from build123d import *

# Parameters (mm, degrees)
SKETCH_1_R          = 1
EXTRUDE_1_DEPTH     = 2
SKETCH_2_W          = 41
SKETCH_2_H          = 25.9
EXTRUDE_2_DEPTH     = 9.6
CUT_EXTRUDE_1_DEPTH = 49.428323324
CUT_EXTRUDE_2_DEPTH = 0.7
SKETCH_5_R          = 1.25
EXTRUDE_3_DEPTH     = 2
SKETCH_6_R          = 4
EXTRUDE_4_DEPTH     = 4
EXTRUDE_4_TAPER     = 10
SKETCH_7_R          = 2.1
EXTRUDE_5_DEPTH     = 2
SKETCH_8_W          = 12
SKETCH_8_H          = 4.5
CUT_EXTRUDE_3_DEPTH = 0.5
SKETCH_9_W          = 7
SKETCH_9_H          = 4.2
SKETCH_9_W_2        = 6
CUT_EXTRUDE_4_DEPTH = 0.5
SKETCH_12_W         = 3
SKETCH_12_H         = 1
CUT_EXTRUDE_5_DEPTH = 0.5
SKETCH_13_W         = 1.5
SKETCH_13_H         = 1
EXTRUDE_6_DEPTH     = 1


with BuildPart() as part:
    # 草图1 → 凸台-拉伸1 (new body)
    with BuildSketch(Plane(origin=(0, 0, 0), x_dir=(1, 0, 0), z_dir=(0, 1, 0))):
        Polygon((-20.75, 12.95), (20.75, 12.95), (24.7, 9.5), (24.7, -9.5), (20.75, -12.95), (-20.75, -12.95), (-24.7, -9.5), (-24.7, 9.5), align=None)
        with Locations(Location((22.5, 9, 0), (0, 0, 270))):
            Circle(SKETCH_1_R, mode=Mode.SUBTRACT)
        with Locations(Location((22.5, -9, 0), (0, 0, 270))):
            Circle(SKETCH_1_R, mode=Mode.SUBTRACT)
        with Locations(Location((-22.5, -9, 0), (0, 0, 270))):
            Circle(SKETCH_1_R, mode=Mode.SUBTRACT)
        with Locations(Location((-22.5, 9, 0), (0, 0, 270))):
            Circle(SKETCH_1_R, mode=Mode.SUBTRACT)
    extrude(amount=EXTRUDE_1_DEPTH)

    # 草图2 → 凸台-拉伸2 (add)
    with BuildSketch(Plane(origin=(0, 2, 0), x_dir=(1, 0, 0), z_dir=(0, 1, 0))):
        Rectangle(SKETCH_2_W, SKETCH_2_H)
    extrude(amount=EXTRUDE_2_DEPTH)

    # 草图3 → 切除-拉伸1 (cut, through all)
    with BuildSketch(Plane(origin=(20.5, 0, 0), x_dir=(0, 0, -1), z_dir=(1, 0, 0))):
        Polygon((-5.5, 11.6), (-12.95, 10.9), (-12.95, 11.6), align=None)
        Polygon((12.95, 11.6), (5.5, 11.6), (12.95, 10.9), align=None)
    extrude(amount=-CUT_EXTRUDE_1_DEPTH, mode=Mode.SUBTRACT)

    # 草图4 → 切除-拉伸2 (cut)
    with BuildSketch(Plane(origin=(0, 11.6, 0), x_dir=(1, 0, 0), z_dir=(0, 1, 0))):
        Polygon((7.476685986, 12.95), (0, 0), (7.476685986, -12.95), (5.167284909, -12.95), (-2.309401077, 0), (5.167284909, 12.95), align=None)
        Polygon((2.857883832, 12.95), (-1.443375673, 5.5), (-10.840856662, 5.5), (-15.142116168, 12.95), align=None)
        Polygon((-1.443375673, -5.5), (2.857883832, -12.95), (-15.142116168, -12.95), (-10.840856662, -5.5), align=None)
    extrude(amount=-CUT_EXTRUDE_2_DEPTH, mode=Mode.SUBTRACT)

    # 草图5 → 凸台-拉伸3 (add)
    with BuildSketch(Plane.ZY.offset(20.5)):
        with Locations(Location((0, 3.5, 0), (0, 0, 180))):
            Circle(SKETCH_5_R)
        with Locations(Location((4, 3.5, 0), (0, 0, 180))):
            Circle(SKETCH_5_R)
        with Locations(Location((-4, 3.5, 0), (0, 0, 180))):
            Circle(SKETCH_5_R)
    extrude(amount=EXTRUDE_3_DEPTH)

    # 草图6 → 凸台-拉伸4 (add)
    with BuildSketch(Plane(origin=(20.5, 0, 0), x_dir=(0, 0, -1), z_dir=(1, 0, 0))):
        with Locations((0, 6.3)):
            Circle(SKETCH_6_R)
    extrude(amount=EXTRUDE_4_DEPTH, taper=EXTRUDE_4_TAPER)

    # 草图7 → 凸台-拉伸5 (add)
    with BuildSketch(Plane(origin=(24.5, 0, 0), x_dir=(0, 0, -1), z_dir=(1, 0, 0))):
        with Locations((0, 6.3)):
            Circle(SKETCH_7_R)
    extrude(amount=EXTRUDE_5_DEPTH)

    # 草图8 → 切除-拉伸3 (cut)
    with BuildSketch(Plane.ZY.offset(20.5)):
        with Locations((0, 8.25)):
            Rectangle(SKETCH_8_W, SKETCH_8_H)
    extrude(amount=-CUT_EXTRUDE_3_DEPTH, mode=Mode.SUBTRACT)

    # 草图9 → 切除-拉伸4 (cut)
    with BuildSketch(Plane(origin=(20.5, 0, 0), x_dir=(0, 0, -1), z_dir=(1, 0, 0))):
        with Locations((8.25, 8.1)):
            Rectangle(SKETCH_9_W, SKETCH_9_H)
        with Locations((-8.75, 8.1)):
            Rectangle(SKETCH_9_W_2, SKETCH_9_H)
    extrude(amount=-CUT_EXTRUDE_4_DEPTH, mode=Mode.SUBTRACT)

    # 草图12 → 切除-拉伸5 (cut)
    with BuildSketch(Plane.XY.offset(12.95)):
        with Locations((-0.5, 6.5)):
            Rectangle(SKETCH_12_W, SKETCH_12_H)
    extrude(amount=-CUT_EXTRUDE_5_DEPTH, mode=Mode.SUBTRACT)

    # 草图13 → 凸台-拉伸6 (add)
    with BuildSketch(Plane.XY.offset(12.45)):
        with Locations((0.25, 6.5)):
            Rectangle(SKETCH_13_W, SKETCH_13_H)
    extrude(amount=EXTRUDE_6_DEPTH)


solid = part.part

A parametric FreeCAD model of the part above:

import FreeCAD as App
import Part
import Sketcher

V = App.Vector
Q = App.Units.Quantity


def add_polygon(sketch, points):
    """Adds a closed chain of lines whose ends are joined by coincident constraints."""
    first, n = sketch.GeometryCount, len(points)
    for a, b in zip(points, points[1:] + points[:1]):
        sketch.addGeometry(Part.LineSegment(App.Vector(*a, 0), App.Vector(*b, 0)), False)
    for i in range(n):
        sketch.addConstraint(Sketcher.Constraint("Coincident", first + i, 2, first + (i + 1) % n, 1))

doc = App.newDocument("Part")
params = doc.addObject("Spreadsheet::Sheet", "Params")
for row, (alias, value) in enumerate([
    ("sketch1_diameter", "2 mm"),
    ("sketch1_height", "19 mm"),
    ("sketch1_width", "41.5 mm"),
    ("pad1_length", "2 mm"),
    ("sketch2_width", "41 mm"),
    ("sketch2_height", "25.9 mm"),
    ("pad2_length", "9.6 mm"),
    ("sketch3_width", "0.7 mm"),
    ("sketch3_height", "7.45 mm"),
    ("sketch4_width", "18 mm"),
    ("pocket2_length", "0.7 mm"),
    ("sketch5_diameter", "2.5 mm"),
    ("pad3_length", "2 mm"),
    ("sketch6_diameter", "8 mm"),
    ("pad4_length", "4 mm"),
    ("pad4_taper", "-10 deg"),
    ("sketch7_diameter", "4.2 mm"),
    ("pad5_length", "2 mm"),
    ("sketch8_height", "12 mm"),
    ("sketch8_width", "4.5 mm"),
    ("pocket3_length", "0.5 mm"),
    ("sketch9_height", "7 mm"),
    ("sketch9_height2", "6 mm"),
    ("sketch9_width", "4.2 mm"),
    ("pocket4_length", "0.5 mm"),
    ("sketch10_width", "3 mm"),
    ("sketch10_height", "1 mm"),
    ("pocket5_length", "0.5 mm"),
    ("sketch11_height", "1 mm"),
    ("sketch11_width", "1.5 mm"),
    ("pad6_length", "1 mm"),
], start=1):
    params.set(f"A{row}", alias)
    params.set(f"B{row}", "=" + value)
    params.setAlias(f"B{row}", alias)

body = doc.addObject("PartDesign::Body", "Body")

sketch1 = doc.addObject("Sketcher::SketchObject", "Sketch")
body.addObject(sketch1)
sketch1.AttachmentSupport = (doc.XZ_Plane, [""])
sketch1.MapMode = "FlatFace"
add_polygon(sketch1, [(20.8, -12.9), (-20.8, -12.9), (-24.7, -9.5), (-24.7, 9.5), (-20.8, 12.9), (20.8, 12.9), (24.7, 9.5), (24.7, -9.5)])
sketch1.addGeometry(Part.Circle(V(22.5, 9, 0), V(0, 0, 1), 1), False)
sketch1.addGeometry(Part.Circle(V(-22.5, 9, 0), V(0, 0, 1), 1), False)
sketch1.addGeometry(Part.Circle(V(22.5, -9, 0), V(0, 0, 1), 1), False)
sketch1.addGeometry(Part.Circle(V(-22.5, -9, 0), V(0, 0, 1), 1), False)
sketch1.addConstraint(Sketcher.Constraint("Horizontal", 0))
sketch1.addConstraint(Sketcher.Constraint("Vertical", 2))
sketch1.addConstraint(Sketcher.Constraint("Horizontal", 4))
sketch1.addConstraint(Sketcher.Constraint("Vertical", 6))
sketch1.addConstraint(Sketcher.Constraint("Equal", 8, 9))
sketch1.addConstraint(Sketcher.Constraint("Equal", 9, 10))
sketch1.addConstraint(Sketcher.Constraint("Equal", 10, 11))
sketch1.addConstraint(Sketcher.Constraint("Symmetric", 9, 3, 10, 3, -1, 1))
sketch1.addConstraint(Sketcher.Constraint("Symmetric", 8, 3, 11, 3, -1, 1))
sketch1.addConstraint(Sketcher.Constraint("Symmetric", 0, 2, 4, 2, -1, 1))
sketch1.addConstraint(Sketcher.Constraint("Symmetric", 1, 2, 5, 2, -1, 1))
sketch1.addConstraint(Sketcher.Constraint("Symmetric", 8, 3, 9, 3, -2))
sketch1.addConstraint(Sketcher.Constraint("Parallel", 3, 7))
sketch1.addConstraint(Sketcher.Constraint("Horizontal", 2, 2, 5, 2))
sketch1.addConstraint(Sketcher.Constraint("Horizontal", 1, 2, 6, 2))
sketch1.addConstraint(Sketcher.Constraint("Vertical", 0, 2, 3, 2))
sketch1.addConstraint(Sketcher.Constraint("Diameter", 8, 2.0))
sketch1.addConstraint(Sketcher.Constraint("DistanceY", 2, 1, 2, 2, 19.0))
sketch1.addConstraint(Sketcher.Constraint("DistanceX", 0, 2, 0, 1, 41.5))
sketch1.addConstraint(Sketcher.Constraint("DistanceY", -1, 1, 8, 3, 9.0))
sketch1.addConstraint(Sketcher.Constraint("DistanceX", 9, 3, 8, 3, 45.0))
sketch1.addConstraint(Sketcher.Constraint("DistanceX", 1, 2, -1, 1, 24.7))
sketch1.addConstraint(Sketcher.Constraint("DistanceY", 0, 2, 3, 2, 25.9))
sketch1.setExpression("Constraints[24]", "Params.sketch1_diameter")
sketch1.setExpression("Constraints[25]", "Params.sketch1_height")
sketch1.setExpression("Constraints[26]", "Params.sketch1_width")
pad1 = doc.addObject("PartDesign::Pad", "Pad")
body.addObject(pad1)
pad1.Profile = sketch1
pad1.setExpression("Length", "Params.pad1_length")
pad1.Reversed = True

sketch2 = doc.addObject("Sketcher::SketchObject", "Sketch001")
body.addObject(sketch2)
sketch2.AttachmentSupport = (doc.XZ_Plane, [""])
sketch2.MapMode = "FlatFace"
sketch2.AttachmentOffset = App.Placement(V(0, 0, -2), App.Rotation())
add_polygon(sketch2, [(-20, -13), (-20, 13), (20, 13), (20, -13)])
sketch2.addConstraint(Sketcher.Constraint("Vertical", 0))
sketch2.addConstraint(Sketcher.Constraint("Horizontal", 1))
sketch2.addConstraint(Sketcher.Constraint("Vertical", 2))
sketch2.addConstraint(Sketcher.Constraint("Horizontal", 3))
sketch2.addConstraint(Sketcher.Constraint("Symmetric", 0, 2, 2, 2, -1, 1))
sketch2.addConstraint(Sketcher.Constraint("DistanceX", 1, 1, 1, 2, 41.0))
sketch2.addConstraint(Sketcher.Constraint("DistanceY", 0, 1, 0, 2, 25.9))
sketch2.setExpression("Constraints[9]", "Params.sketch2_width")
sketch2.setExpression("Constraints[10]", "Params.sketch2_height")
pad2 = doc.addObject("PartDesign::Pad", "Pad001")
body.addObject(pad2)
pad2.Profile = sketch2
pad2.setExpression("Length", "Params.pad2_length")
pad2.Reversed = True

sketch3 = doc.addObject("Sketcher::SketchObject", "Sketch002")
body.addObject(sketch3)
sketch3.AttachmentSupport = (doc.YZ_Plane, [""])
sketch3.MapMode = "FlatFace"
sketch3.AttachmentOffset = App.Placement(V(0, 0, 20.5), App.Rotation())
add_polygon(sketch3, [(10.9, 12.9), (11.6, 5.5), (11.6, 12.9)])
add_polygon(sketch3, [(11.6, -12.9), (11.6, -5.5), (10.9, -12.9)])
sketch3.addConstraint(Sketcher.Constraint("Vertical", 1))
sketch3.addConstraint(Sketcher.Constraint("Horizontal", 2))
sketch3.addConstraint(Sketcher.Constraint("Vertical", 3))
sketch3.addConstraint(Sketcher.Constraint("Horizontal", 5))
sketch3.addConstraint(Sketcher.Constraint("Symmetric", 0, 2, 3, 2, -1))
sketch3.addConstraint(Sketcher.Constraint("Symmetric", 2, 2, 4, 2, -1))
sketch3.addConstraint(Sketcher.Constraint("DistanceX", 2, 2, 2, 1, 0.7))
sketch3.addConstraint(Sketcher.Constraint("DistanceY", 3, 2, 0, 2, 11.0))
sketch3.addConstraint(Sketcher.Constraint("DistanceY", 1, 1, 1, 2, 7.45))
sketch3.addConstraint(Sketcher.Constraint("DistanceX", -1, 1, 0, 2, 11.6))
sketch3.setExpression("Constraints[12]", "Params.sketch3_width")
sketch3.setExpression("Constraints[14]", "Params.sketch3_height")
pocket1 = doc.addObject("PartDesign::Pocket", "Pocket")
body.addObject(pocket1)
pocket1.Profile = sketch3
pocket1.Type = "ThroughAll"

sketch4 = doc.addObject("Sketcher::SketchObject", "Sketch003")
body.addObject(sketch4)
sketch4.AttachmentSupport = (doc.XZ_Plane, [""])
sketch4.MapMode = "FlatFace"
sketch4.AttachmentOffset = App.Placement(V(0, 0, -11.6), App.Rotation())
add_polygon(sketch4, [(0, 0), (7.5, -12.9), (5.2, -12.9), (-2.3, 0), (5.2, 12.9), (7.5, 12.9)])
add_polygon(sketch4, [(-1.4, -5.5), (2.9, -12.9), (-15.1, -12.9), (-10.8, -5.5)])
add_polygon(sketch4, [(2.9, 12.9), (-1.4, 5.5), (-10.8, 5.5), (-15.1, 12.9)])
sketch4.addConstraint(Sketcher.Constraint("Horizontal", 1))
sketch4.addConstraint(Sketcher.Constraint("Horizontal", 4))
sketch4.addConstraint(Sketcher.Constraint("Horizontal", 7))
sketch4.addConstraint(Sketcher.Constraint("Horizontal", 9))
sketch4.addConstraint(Sketcher.Constraint("Horizontal", 11))
sketch4.addConstraint(Sketcher.Constraint("Horizontal", 13))
sketch4.addConstraint(Sketcher.Constraint("Coincident", 5, 2, -1, 1))
sketch4.addConstraint(Sketcher.Constraint("Symmetric", 1, 2, 3, 2, -1))
sketch4.addConstraint(Sketcher.Constraint("Symmetric", 9, 2, 10, 2, -1))
sketch4.addConstraint(Sketcher.Constraint("Symmetric", 7, 2, 12, 2, -1))
sketch4.addConstraint(Sketcher.Constraint("PointOnObject", 2, 2, -1))
sketch4.addConstraint(Sketcher.Constraint("Parallel", 0, 2))
sketch4.addConstraint(Sketcher.Constraint("Parallel", 3, 5))
sketch4.addConstraint(Sketcher.Constraint("Parallel", 2, 6))
sketch4.addConstraint(Sketcher.Constraint("Parallel", 5, 8))
sketch4.addConstraint(Sketcher.Constraint("Parallel", 8, 10))
sketch4.addConstraint(Sketcher.Constraint("Parallel", 6, 12))
sketch4.addConstraint(Sketcher.Constraint("Horizontal", 1, 2, 6, 2))
sketch4.addConstraint(Sketcher.Constraint("DistanceX", 7, 2, 7, 1, 18.0))
sketch4.addConstraint(Sketcher.Constraint("Angle", 0, Q("-60 deg")))
sketch4.addConstraint(Sketcher.Constraint("DistanceY", 9, 2, 10, 2, 11.0))
sketch4.addConstraint(Sketcher.Constraint("DistanceY", 1, 2, 3, 2, 25.9))
sketch4.addConstraint(Sketcher.Constraint("DistanceX", 1, 2, 1, 1, 2.309401))
sketch4.addConstraint(Sketcher.Constraint("DistanceX", 6, 2, 1, 2, 2.309401))
sketch4.setExpression("Constraints[32]", "Params.sketch4_width")
pocket2 = doc.addObject("PartDesign::Pocket", "Pocket001")
body.addObject(pocket2)
pocket2.Profile = sketch4
pocket2.setExpression("Length", "Params.pocket2_length")
pocket2.Reversed = True

sketch5 = doc.addObject("Sketcher::SketchObject", "Sketch004")
body.addObject(sketch5)
sketch5.AttachmentSupport = (doc.YZ_Plane, [""])
sketch5.MapMode = "FlatFace"
sketch5.AttachmentOffset = App.Placement(V(0, 0, -20.5), App.Rotation())
sketch5.addGeometry(Part.Circle(V(3.5, 0, 0), V(0, 0, 1), 1.2), False)
sketch5.addGeometry(Part.Circle(V(3.5, 4, 0), V(0, 0, 1), 1.2), False)
sketch5.addGeometry(Part.Circle(V(3.5, -4, 0), V(0, 0, 1), 1.2), False)
sketch5.addConstraint(Sketcher.Constraint("Equal", 0, 1))
sketch5.addConstraint(Sketcher.Constraint("Equal", 1, 2))
sketch5.addConstraint(Sketcher.Constraint("Symmetric", 1, 3, 2, 3, -1))
sketch5.addConstraint(Sketcher.Constraint("PointOnObject", 0, 3, -1))
sketch5.addConstraint(Sketcher.Constraint("Vertical", 0, 3, 1, 3))
sketch5.addConstraint(Sketcher.Constraint("Diameter", 0, 2.5))
sketch5.addConstraint(Sketcher.Constraint("DistanceY", -1, 1, 1, 3, 4.0))
sketch5.addConstraint(Sketcher.Constraint("DistanceX", -1, 1, 0, 3, 3.5))
sketch5.setExpression("Constraints[5]", "Params.sketch5_diameter")
pad3 = doc.addObject("PartDesign::Pad", "Pad002")
body.addObject(pad3)
pad3.Profile = sketch5
pad3.setExpression("Length", "Params.pad3_length")
pad3.Reversed = True

sketch6 = doc.addObject("Sketcher::SketchObject", "Sketch005")
body.addObject(sketch6)
sketch6.AttachmentSupport = (doc.YZ_Plane, [""])
sketch6.MapMode = "FlatFace"
sketch6.AttachmentOffset = App.Placement(V(0, 0, 20.5), App.Rotation())
sketch6.addGeometry(Part.Circle(V(6.3, 0, 0), V(0, 0, 1), 4), False)
sketch6.addConstraint(Sketcher.Constraint("PointOnObject", 0, 3, -1))
sketch6.addConstraint(Sketcher.Constraint("Diameter", 0, 8.0))
sketch6.addConstraint(Sketcher.Constraint("DistanceX", -1, 1, 0, 3, 6.3))
sketch6.setExpression("Constraints[1]", "Params.sketch6_diameter")
pad4 = doc.addObject("PartDesign::Pad", "Pad003")
body.addObject(pad4)
pad4.Profile = sketch6
pad4.setExpression("Length", "Params.pad4_length")
pad4.setExpression("TaperAngle", "Params.pad4_taper")

sketch7 = doc.addObject("Sketcher::SketchObject", "Sketch006")
body.addObject(sketch7)
sketch7.AttachmentSupport = (doc.YZ_Plane, [""])
sketch7.MapMode = "FlatFace"
sketch7.AttachmentOffset = App.Placement(V(0, 0, 24.5), App.Rotation())
sketch7.addGeometry(Part.Circle(V(6.3, 0, 0), V(0, 0, 1), 2.1), False)
sketch7.addConstraint(Sketcher.Constraint("PointOnObject", 0, 3, -1))
sketch7.addConstraint(Sketcher.Constraint("Diameter", 0, 4.2))
sketch7.addConstraint(Sketcher.Constraint("DistanceX", -1, 1, 0, 3, 6.3))
sketch7.setExpression("Constraints[1]", "Params.sketch7_diameter")
pad5 = doc.addObject("PartDesign::Pad", "Pad004")
body.addObject(pad5)
pad5.Profile = sketch7
pad5.setExpression("Length", "Params.pad5_length")

sketch8 = doc.addObject("Sketcher::SketchObject", "Sketch007")
body.addObject(sketch8)
sketch8.AttachmentSupport = (doc.YZ_Plane, [""])
sketch8.MapMode = "FlatFace"
sketch8.AttachmentOffset = App.Placement(V(0, 0, -20.5), App.Rotation())
add_polygon(sketch8, [(10.5, -6), (6, -6), (6, 6), (10.5, 6)])
sketch8.addConstraint(Sketcher.Constraint("Horizontal", 0))
sketch8.addConstraint(Sketcher.Constraint("Vertical", 1))
sketch8.addConstraint(Sketcher.Constraint("Horizontal", 2))
sketch8.addConstraint(Sketcher.Constraint("Vertical", 3))
sketch8.addConstraint(Sketcher.Constraint("DistanceY", 1, 1, 1, 2, 12.0))
sketch8.addConstraint(Sketcher.Constraint("DistanceX", 0, 2, 0, 1, 4.5))
sketch8.addConstraint(Sketcher.Constraint("DistanceX", -1, 1, 0, 2, 6.0))
sketch8.addConstraint(Sketcher.Constraint("DistanceY", 0, 2, -1, 1, 6.0))
sketch8.setExpression("Constraints[8]", "Params.sketch8_height")
sketch8.setExpression("Constraints[9]", "Params.sketch8_width")
pocket3 = doc.addObject("PartDesign::Pocket", "Pocket002")
body.addObject(pocket3)
pocket3.Profile = sketch8
pocket3.setExpression("Length", "Params.pocket3_length")
pocket3.Reversed = True

sketch9 = doc.addObject("Sketcher::SketchObject", "Sketch008")
body.addObject(sketch9)
sketch9.AttachmentSupport = (doc.YZ_Plane, [""])
sketch9.MapMode = "FlatFace"
sketch9.AttachmentOffset = App.Placement(V(0, 0, 20.5), App.Rotation())
add_polygon(sketch9, [(10.2, -4.8), (6, -4.8), (6, -11.8), (10.2, -11.8)])
add_polygon(sketch9, [(10.2, 11.8), (6, 11.8), (6, 5.8), (10.2, 5.8)])
sketch9.addConstraint(Sketcher.Constraint("Horizontal", 0))
sketch9.addConstraint(Sketcher.Constraint("Vertical", 1))
sketch9.addConstraint(Sketcher.Constraint("Horizontal", 2))
sketch9.addConstraint(Sketcher.Constraint("Vertical", 3))
sketch9.addConstraint(Sketcher.Constraint("Horizontal", 4))
sketch9.addConstraint(Sketcher.Constraint("Vertical", 5))
sketch9.addConstraint(Sketcher.Constraint("Horizontal", 6))
sketch9.addConstraint(Sketcher.Constraint("Vertical", 7))
sketch9.addConstraint(Sketcher.Constraint("Symmetric", 1, 2, 4, 2, -1))
sketch9.addConstraint(Sketcher.Constraint("Vertical", 3, 2, 6, 2))
sketch9.addConstraint(Sketcher.Constraint("DistanceY", 1, 2, 1, 1, 7.0))
sketch9.addConstraint(Sketcher.Constraint("DistanceY", 5, 2, 5, 1, 6.0))
sketch9.addConstraint(Sketcher.Constraint("DistanceX", 0, 2, 0, 1, 4.2))
sketch9.addConstraint(Sketcher.Constraint("DistanceX", -1, 1, 0, 2, 6.0))
sketch9.addConstraint(Sketcher.Constraint("DistanceY", 0, 2, 4, 2, 16.5))
sketch9.setExpression("Constraints[18]", "Params.sketch9_height")
sketch9.setExpression("Constraints[19]", "Params.sketch9_height2")
sketch9.setExpression("Constraints[20]", "Params.sketch9_width")
pocket4 = doc.addObject("PartDesign::Pocket", "Pocket003")
body.addObject(pocket4)
pocket4.Profile = sketch9
pocket4.setExpression("Length", "Params.pocket4_length")

sketch10 = doc.addObject("Sketcher::SketchObject", "Sketch009")
body.addObject(sketch10)
sketch10.AttachmentSupport = (doc.XY_Plane, [""])
sketch10.MapMode = "FlatFace"
sketch10.AttachmentOffset = App.Placement(V(0, 0, 12.95), App.Rotation())
add_polygon(sketch10, [(-2, 7), (-2, 6), (1, 6), (1, 7)])
sketch10.addConstraint(Sketcher.Constraint("Vertical", 0))
sketch10.addConstraint(Sketcher.Constraint("Horizontal", 1))
sketch10.addConstraint(Sketcher.Constraint("Vertical", 2))
sketch10.addConstraint(Sketcher.Constraint("Horizontal", 3))
sketch10.addConstraint(Sketcher.Constraint("DistanceX", 1, 1, 1, 2, 3.0))
sketch10.addConstraint(Sketcher.Constraint("DistanceY", 0, 2, 0, 1, 1.0))
sketch10.addConstraint(Sketcher.Constraint("DistanceX", 0, 2, -1, 1, 2.0))
sketch10.addConstraint(Sketcher.Constraint("DistanceY", -1, 1, 0, 2, 6.0))
sketch10.setExpression("Constraints[8]", "Params.sketch10_width")
sketch10.setExpression("Constraints[9]", "Params.sketch10_height")
pocket5 = doc.addObject("PartDesign::Pocket", "Pocket004")
body.addObject(pocket5)
pocket5.Profile = sketch10
pocket5.setExpression("Length", "Params.pocket5_length")

sketch11 = doc.addObject("Sketcher::SketchObject", "Sketch010")
body.addObject(sketch11)
sketch11.AttachmentSupport = (doc.XY_Plane, [""])
sketch11.MapMode = "FlatFace"
sketch11.AttachmentOffset = App.Placement(V(0, 0, 12.45), App.Rotation())
add_polygon(sketch11, [(-0.5, 7), (-0.5, 6), (1, 6), (1, 7)])
sketch11.addConstraint(Sketcher.Constraint("Vertical", 0))
sketch11.addConstraint(Sketcher.Constraint("Horizontal", 1))
sketch11.addConstraint(Sketcher.Constraint("Vertical", 2))
sketch11.addConstraint(Sketcher.Constraint("Horizontal", 3))
sketch11.addConstraint(Sketcher.Constraint("DistanceY", 0, 2, 0, 1, 1.0))
sketch11.addConstraint(Sketcher.Constraint("DistanceX", 1, 1, 1, 2, 1.5))
sketch11.addConstraint(Sketcher.Constraint("DistanceY", -1, 1, 0, 2, 6.0))
sketch11.addConstraint(Sketcher.Constraint("DistanceX", -1, 1, 1, 2, 1.0))
sketch11.setExpression("Constraints[8]", "Params.sketch11_height")
sketch11.setExpression("Constraints[9]", "Params.sketch11_width")
pad6 = doc.addObject("PartDesign::Pad", "Pad005")
body.addObject(pad6)
pad6.Profile = sketch11
pad6.setExpression("Length", "Params.pad6_length")

doc.recompute()
